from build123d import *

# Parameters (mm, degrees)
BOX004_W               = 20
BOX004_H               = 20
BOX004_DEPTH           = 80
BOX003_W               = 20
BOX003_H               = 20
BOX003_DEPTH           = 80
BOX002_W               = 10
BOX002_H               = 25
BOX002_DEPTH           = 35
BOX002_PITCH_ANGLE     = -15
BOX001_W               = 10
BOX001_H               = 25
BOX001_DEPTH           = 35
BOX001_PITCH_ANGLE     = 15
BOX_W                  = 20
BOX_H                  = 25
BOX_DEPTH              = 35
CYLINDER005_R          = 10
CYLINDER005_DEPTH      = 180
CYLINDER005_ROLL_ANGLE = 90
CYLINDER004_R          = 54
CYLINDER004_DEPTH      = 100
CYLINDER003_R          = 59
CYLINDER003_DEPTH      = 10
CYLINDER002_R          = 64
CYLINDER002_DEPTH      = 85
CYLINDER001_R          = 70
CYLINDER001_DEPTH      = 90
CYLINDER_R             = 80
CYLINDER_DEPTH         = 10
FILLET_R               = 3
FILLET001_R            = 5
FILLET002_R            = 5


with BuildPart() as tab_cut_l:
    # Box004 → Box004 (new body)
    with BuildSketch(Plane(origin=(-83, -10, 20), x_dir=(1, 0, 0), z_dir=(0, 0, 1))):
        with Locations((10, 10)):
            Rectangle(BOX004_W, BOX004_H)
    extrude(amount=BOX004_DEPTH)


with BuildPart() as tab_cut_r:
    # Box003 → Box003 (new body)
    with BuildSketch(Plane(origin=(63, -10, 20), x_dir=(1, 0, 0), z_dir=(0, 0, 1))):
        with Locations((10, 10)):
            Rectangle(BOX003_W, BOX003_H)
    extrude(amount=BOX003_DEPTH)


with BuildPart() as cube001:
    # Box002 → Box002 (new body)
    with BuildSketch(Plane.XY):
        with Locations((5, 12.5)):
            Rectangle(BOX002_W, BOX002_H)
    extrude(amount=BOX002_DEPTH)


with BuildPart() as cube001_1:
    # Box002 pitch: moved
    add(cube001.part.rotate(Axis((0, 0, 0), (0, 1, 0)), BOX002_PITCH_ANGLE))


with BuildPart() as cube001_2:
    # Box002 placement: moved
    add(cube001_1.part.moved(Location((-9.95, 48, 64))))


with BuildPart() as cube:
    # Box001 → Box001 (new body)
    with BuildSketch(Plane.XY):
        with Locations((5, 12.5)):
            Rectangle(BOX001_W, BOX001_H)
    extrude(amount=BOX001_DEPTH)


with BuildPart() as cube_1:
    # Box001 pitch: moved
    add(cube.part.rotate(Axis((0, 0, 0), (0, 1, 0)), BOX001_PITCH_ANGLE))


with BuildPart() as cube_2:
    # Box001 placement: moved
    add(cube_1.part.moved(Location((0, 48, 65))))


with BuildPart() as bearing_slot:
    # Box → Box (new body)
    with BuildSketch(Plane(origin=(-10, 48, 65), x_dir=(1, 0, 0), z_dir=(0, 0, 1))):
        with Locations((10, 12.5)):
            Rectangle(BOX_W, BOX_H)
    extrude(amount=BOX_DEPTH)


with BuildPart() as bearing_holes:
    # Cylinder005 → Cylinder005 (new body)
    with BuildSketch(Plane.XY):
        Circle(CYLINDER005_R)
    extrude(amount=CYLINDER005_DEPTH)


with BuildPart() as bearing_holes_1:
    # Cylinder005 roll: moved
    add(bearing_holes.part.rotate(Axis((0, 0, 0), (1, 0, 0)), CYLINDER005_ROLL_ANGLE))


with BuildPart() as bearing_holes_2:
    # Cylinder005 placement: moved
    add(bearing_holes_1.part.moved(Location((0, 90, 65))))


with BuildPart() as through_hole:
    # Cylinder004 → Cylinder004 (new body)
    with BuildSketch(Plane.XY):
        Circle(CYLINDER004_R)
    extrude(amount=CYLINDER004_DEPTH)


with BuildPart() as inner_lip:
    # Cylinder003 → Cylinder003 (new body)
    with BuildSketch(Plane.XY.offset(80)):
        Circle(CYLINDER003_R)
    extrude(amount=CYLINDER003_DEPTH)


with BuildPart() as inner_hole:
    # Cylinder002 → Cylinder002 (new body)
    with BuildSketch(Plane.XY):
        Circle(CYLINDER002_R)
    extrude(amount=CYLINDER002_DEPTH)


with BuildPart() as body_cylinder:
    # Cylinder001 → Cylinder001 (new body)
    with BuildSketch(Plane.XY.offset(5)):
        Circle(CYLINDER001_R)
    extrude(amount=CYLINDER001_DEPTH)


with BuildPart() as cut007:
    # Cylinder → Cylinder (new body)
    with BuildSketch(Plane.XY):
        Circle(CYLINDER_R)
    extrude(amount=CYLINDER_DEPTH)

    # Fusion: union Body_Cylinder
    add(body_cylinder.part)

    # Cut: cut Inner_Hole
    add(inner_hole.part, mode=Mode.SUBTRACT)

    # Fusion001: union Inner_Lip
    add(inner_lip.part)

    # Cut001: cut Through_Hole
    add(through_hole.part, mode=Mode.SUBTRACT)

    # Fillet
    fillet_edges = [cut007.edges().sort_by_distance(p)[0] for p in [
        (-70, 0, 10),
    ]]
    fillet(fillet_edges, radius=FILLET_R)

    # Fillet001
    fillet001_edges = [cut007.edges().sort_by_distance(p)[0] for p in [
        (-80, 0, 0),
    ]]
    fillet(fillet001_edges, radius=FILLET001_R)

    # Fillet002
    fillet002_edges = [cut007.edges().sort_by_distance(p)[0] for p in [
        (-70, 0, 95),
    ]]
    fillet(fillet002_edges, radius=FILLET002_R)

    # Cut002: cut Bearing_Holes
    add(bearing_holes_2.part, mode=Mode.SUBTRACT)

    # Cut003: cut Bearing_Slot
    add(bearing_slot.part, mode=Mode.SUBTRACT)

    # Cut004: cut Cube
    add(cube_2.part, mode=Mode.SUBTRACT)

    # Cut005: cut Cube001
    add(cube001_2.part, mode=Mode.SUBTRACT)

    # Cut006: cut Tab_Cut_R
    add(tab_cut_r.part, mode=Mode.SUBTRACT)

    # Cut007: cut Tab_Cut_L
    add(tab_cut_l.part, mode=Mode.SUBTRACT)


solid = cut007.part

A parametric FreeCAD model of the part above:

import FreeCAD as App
import Part
import Sketcher

V = App.Vector


def edges_at(feature, points):
    """Names of the edges that pass closest to the given points."""
    edges = feature.Shape.Edges
    near = lambda p: min(range(len(edges)), key=lambda i: edges[i].distToShape(Part.Vertex(*p))[0])
    return sorted({f"Edge{near(p) + 1}" for p in points})

doc = App.newDocument("Part")
body = doc.addObject("PartDesign::Body", "Body")

# Sketch on XY plane
sketch1 = body.newObject("Sketcher::SketchObject", "Sketch")
sketch1.AttachmentSupport = (doc.getObject("XY_Plane"), [""])
sketch1.MapMode = "FlatFace"
sketch1.AttachmentOffset = App.Placement(V(0, 0, 20), App.Rotation())
sketch1.addGeometry([
    Part.LineSegment(V(-83, 10, 0), V(-83, -10, 0)),
    Part.LineSegment(V(-83, -10, 0), V(-63, -10, 0)),
    Part.LineSegment(V(-63, -10, 0), V(-63, 10, 0)),
    Part.LineSegment(V(-63, 10, 0), V(-83, 10, 0)),
], False)
sketch1.addConstraint([
    Sketcher.Constraint("Coincident", 0, 2, 1, 1),
    Sketcher.Constraint("Coincident", 1, 2, 2, 1),
    Sketcher.Constraint("Coincident", 2, 2, 3, 1),
    Sketcher.Constraint("Coincident", 3, 2, 0, 1),
    Sketcher.Constraint("Vertical", 0),
    Sketcher.Constraint("Horizontal", 1),
    Sketcher.Constraint("Vertical", 2),
    Sketcher.Constraint("Horizontal", 3),
    Sketcher.Constraint("Equal", 3, 0),
    Sketcher.Constraint("DistanceX", 1, 1, 1, 2, 20.0),
    Sketcher.Constraint("DistanceX", 0, 2, -1, 1, 83.0),
    Sketcher.Constraint("DistanceY", 0, 2, -1, 1, 10.0),
])
pad1 = body.newObject("PartDesign::Pad", "Pad")
pad1.Profile = sketch1
pad1.Length = 80
body2 = doc.addObject("PartDesign::Body", "Body001")

# Sketch on XY plane
sketch2 = body2.newObject("Sketcher::SketchObject", "Sketch001")
sketch2.AttachmentSupport = (doc.getObject("XY_Plane001"), [""])
sketch2.MapMode = "FlatFace"
sketch2.AttachmentOffset = App.Placement(V(0, 0, 20), App.Rotation())
sketch2.addGeometry([
    Part.LineSegment(V(63, 10, 0), V(63, -10, 0)),
    Part.LineSegment(V(63, -10, 0), V(83, -10, 0)),
    Part.LineSegment(V(83, -10, 0), V(83, 10, 0)),
    Part.LineSegment(V(83, 10, 0), V(63, 10, 0)),
], False)
sketch2.addConstraint([
    Sketcher.Constraint("Coincident", 0, 2, 1, 1),
    Sketcher.Constraint("Coincident", 1, 2, 2, 1),
    Sketcher.Constraint("Coincident", 2, 2, 3, 1),
    Sketcher.Constraint("Coincident", 3, 2, 0, 1),
    Sketcher.Constraint("Vertical", 0),
    Sketcher.Constraint("Horizontal", 1),
    Sketcher.Constraint("Vertical", 2),
    Sketcher.Constraint("Horizontal", 3),
    Sketcher.Constraint("Equal", 3, 0),
    Sketcher.Constraint("DistanceX", 1, 1, 1, 2, 20.0),
    Sketcher.Constraint("DistanceX", -1, 1, 0, 2, 63.0),
    Sketcher.Constraint("DistanceY", 0, 2, -1, 1, 10.0),
])
pad2 = body2.newObject("PartDesign::Pad", "Pad001")
pad2.Profile = sketch2
pad2.Length = 80
body3 = doc.addObject("PartDesign::Body", "Body002")

# Sketch on XY plane
sketch3 = body3.newObject("Sketcher::SketchObject", "Sketch002")
sketch3.AttachmentSupport = (doc.getObject("XY_Plane002"), [""])
sketch3.MapMode = "FlatFace"
sketch3.addGeometry([
    Part.LineSegment(V(0, 25, 0), V(0, 0, 0)),
    Part.LineSegment(V(0, 0, 0), V(10, 0, 0)),
    Part.LineSegment(V(10, 0, 0), V(10, 25, 0)),
    Part.LineSegment(V(10, 25, 0), V(0, 25, 0)),
], False)
sketch3.addConstraint([
    Sketcher.Constraint("Coincident", 0, 2, 1, 1),
    Sketcher.Constraint("Coincident", 1, 2, 2, 1),
    Sketcher.Constraint("Coincident", 2, 2, 3, 1),
    Sketcher.Constraint("Coincident", 3, 2, 0, 1),
    Sketcher.Constraint("Vertical", 0),
    Sketcher.Constraint("Horizontal", 1),
    Sketcher.Constraint("Vertical", 2),
    Sketcher.Constraint("Horizontal", 3),
    Sketcher.Constraint("Coincident", 0, 2, -1, 1),
    Sketcher.Constraint("DistanceX", 1, 1, 1, 2, 10.0),
    Sketcher.Constraint("DistanceY", 0, 2, 0, 1, 25.0),
])
pad3 = body3.newObject("PartDesign::Pad", "Pad002")
pad3.Profile = sketch3
pad3.Length = 35
body4 = doc.addObject("PartDesign::Body", "Body003")
doc.recompute()

body3.Placement = App.Placement(V(0, 0, 0), App.Rotation(V(0, 1, 0), 345))
boolean = body4.newObject("PartDesign::Boolean", "Boolean")
boolean.Type = "Fuse"
boolean.addObjects([body3])
body5 = doc.addObject("PartDesign::Body", "Body004")
doc.recompute()

body4.Placement = App.Placement(V(-9.95, 48, 64), App.Rotation(V(0, 0, 1), 0))
boolean2 = body5.newObject("PartDesign::Boolean", "Boolean001")
boolean2.Type = "Fuse"
boolean2.addObjects([body4])
body6 = doc.addObject("PartDesign::Body", "Body005")

# Sketch on XY plane
sketch4 = body6.newObject("Sketcher::SketchObject", "Sketch003")
sketch4.AttachmentSupport = (doc.getObject("XY_Plane005"), [""])
sketch4.MapMode = "FlatFace"
sketch4.addGeometry([
    Part.LineSegment(V(0, 25, 0), V(0, 0, 0)),
    Part.LineSegment(V(0, 0, 0), V(10, 0, 0)),
    Part.LineSegment(V(10, 0, 0), V(10, 25, 0)),
    Part.LineSegment(V(10, 25, 0), V(0, 25, 0)),
], False)
sketch4.addConstraint([
    Sketcher.Constraint("Coincident", 0, 2, 1, 1),
    Sketcher.Constraint("Coincident", 1, 2, 2, 1),
    Sketcher.Constraint("Coincident", 2, 2, 3, 1),
    Sketcher.Constraint("Coincident", 3, 2, 0, 1),
    Sketcher.Constraint("Vertical", 0),
    Sketcher.Constraint("Horizontal", 1),
    Sketcher.Constraint("Vertical", 2),
    Sketcher.Constraint("Horizontal", 3),
    Sketcher.Constraint("Coincident", 0, 2, -1, 1),
    Sketcher.Constraint("DistanceX", 1, 1, 1, 2, 10.0),
    Sketcher.Constraint("DistanceY", 0, 2, 0, 1, 25.0),
])
pad4 = body6.newObject("PartDesign::Pad", "Pad003")
pad4.Profile = sketch4
pad4.Length = 35
body7 = doc.addObject("PartDesign::Body", "Body006")
doc.recompute()

body6.Placement = App.Placement(V(0, 0, 0), App.Rotation(V(0, 1, 0), 15))
boolean3 = body7.newObject("PartDesign::Boolean", "Boolean002")
boolean3.Type = "Fuse"
boolean3.addObjects([body6])
body8 = doc.addObject("PartDesign::Body", "Body007")
doc.recompute()

body7.Placement = App.Placement(V(0, 48, 65), App.Rotation(V(0, 0, 1), 0))
boolean4 = body8.newObject("PartDesign::Boolean", "Boolean003")
boolean4.Type = "Fuse"
boolean4.addObjects([body7])
body9 = doc.addObject("PartDesign::Body", "Body008")

# Sketch on XY plane
sketch5 = body9.newObject("Sketcher::SketchObject", "Sketch004")
sketch5.AttachmentSupport = (doc.getObject("XY_Plane008"), [""])
sketch5.MapMode = "FlatFace"
sketch5.AttachmentOffset = App.Placement(V(0, 0, 65), App.Rotation())
sketch5.addGeometry([
    Part.LineSegment(V(-10, 73, 0), V(-10, 48, 0)),
    Part.LineSegment(V(-10, 48, 0), V(10, 48, 0)),
    Part.LineSegment(V(10, 48, 0), V(10, 73, 0)),
    Part.LineSegment(V(10, 73, 0), V(-10, 73, 0)),
], False)
sketch5.addConstraint([
    Sketcher.Constraint("Coincident", 0, 2, 1, 1),
    Sketcher.Constraint("Coincident", 1, 2, 2, 1),
    Sketcher.Constraint("Coincident", 2, 2, 3, 1),
    Sketcher.Constraint("Coincident", 3, 2, 0, 1),
    Sketcher.Constraint("Vertical", 0),
    Sketcher.Constraint("Horizontal", 1),
    Sketcher.Constraint("Vertical", 2),
    Sketcher.Constraint("Horizontal", 3),
    Sketcher.Constraint("DistanceX", 1, 1, 1, 2, 20.0),
    Sketcher.Constraint("DistanceY", 0, 2, 0, 1, 25.0),
    Sketcher.Constraint("DistanceX", 0, 2, -1, 1, 10.0),
    Sketcher.Constraint("DistanceY", -1, 1, 0, 2, 48.0),
])
pad5 = body9.newObject("PartDesign::Pad", "Pad004")
pad5.Profile = sketch5
pad5.Length = 35
body10 = doc.addObject("PartDesign::Body", "Body009")

# Sketch on XY plane
sketch6 = body10.newObject("Sketcher::SketchObject", "Sketch005")
sketch6.AttachmentSupport = (doc.getObject("XY_Plane009"), [""])
sketch6.MapMode = "FlatFace"
sketch6.addGeometry(Part.Circle(V(0, 0, 0), V(0, 0, 1), 10), False)
sketch6.addConstraint([
    Sketcher.Constraint("Coincident", 0, 3, -1, 1),
    Sketcher.Constraint("Diameter", 0, 20.0),
])
pad6 = body10.newObject("PartDesign::Pad", "Pad005")
pad6.Profile = sketch6
pad6.Length = 180
body11 = doc.addObject("PartDesign::Body", "Body010")
doc.recompute()

body10.Placement = App.Placement(V(0, 0, 0), App.Rotation(V(1, 0, 0), 90))
boolean5 = body11.newObject("PartDesign::Boolean", "Boolean004")
boolean5.Type = "Fuse"
boolean5.addObjects([body10])
body12 = doc.addObject("PartDesign::Body", "Body011")
doc.recompute()

body11.Placement = App.Placement(V(0, 90, 65), App.Rotation(V(0, 0, 1), 0))
boolean6 = body12.newObject("PartDesign::Boolean", "Boolean005")
boolean6.Type = "Fuse"
boolean6.addObjects([body11])
body13 = doc.addObject("PartDesign::Body", "Body012")

# Sketch on XY plane
sketch7 = body13.newObject("Sketcher::SketchObject", "Sketch006")
sketch7.AttachmentSupport = (doc.getObject("XY_Plane012"), [""])
sketch7.MapMode = "FlatFace"
sketch7.addGeometry(Part.Circle(V(0, 0, 0), V(0, 0, 1), 54), False)
sketch7.addConstraint([
    Sketcher.Constraint("Coincident", 0, 3, -1, 1),
    Sketcher.Constraint("Diameter", 0, 108.0),
])
pad7 = body13.newObject("PartDesign::Pad", "Pad006")
pad7.Profile = sketch7
pad7.Length = 100
body14 = doc.addObject("PartDesign::Body", "Body013")

# Sketch on XY plane
sketch8 = body14.newObject("Sketcher::SketchObject", "Sketch007")
sketch8.AttachmentSupport = (doc.getObject("XY_Plane013"), [""])
sketch8.MapMode = "FlatFace"
sketch8.AttachmentOffset = App.Placement(V(0, 0, 80), App.Rotation())
sketch8.addGeometry(Part.Circle(V(0, 0, 0), V(0, 0, 1), 59), False)
sketch8.addConstraint([
    Sketcher.Constraint("Coincident", 0, 3, -1, 1),
    Sketcher.Constraint("Diameter", 0, 118.0),
])
pad8 = body14.newObject("PartDesign::Pad", "Pad007")
pad8.Profile = sketch8
pad8.Length = 10
body15 = doc.addObject("PartDesign::Body", "Body014")

# Sketch on XY plane
sketch9 = body15.newObject("Sketcher::SketchObject", "Sketch008")
sketch9.AttachmentSupport = (doc.getObject("XY_Plane014"), [""])
sketch9.MapMode = "FlatFace"
sketch9.addGeometry(Part.Circle(V(0, 0, 0), V(0, 0, 1), 64), False)
sketch9.addConstraint([
    Sketcher.Constraint("Coincident", 0, 3, -1, 1),
    Sketcher.Constraint("Diameter", 0, 128.0),
])
pad9 = body15.newObject("PartDesign::Pad", "Pad008")
pad9.Profile = sketch9
pad9.Length = 85
body16 = doc.addObject("PartDesign::Body", "Body015")

# Sketch on XY plane
sketch10 = body16.newObject("Sketcher::SketchObject", "Sketch009")
sketch10.AttachmentSupport = (doc.getObject("XY_Plane015"), [""])
sketch10.MapMode = "FlatFace"
sketch10.AttachmentOffset = App.Placement(V(0, 0, 5), App.Rotation())
sketch10.addGeometry(Part.Circle(V(0, 0, 0), V(0, 0, 1), 70), False)
sketch10.addConstraint([
    Sketcher.Constraint("Coincident", 0, 3, -1, 1),
    Sketcher.Constraint("Diameter", 0, 140.0),
])
pad10 = body16.newObject("PartDesign::Pad", "Pad009")
pad10.Profile = sketch10
pad10.Length = 90
body17 = doc.addObject("PartDesign::Body", "Body016")

# Sketch on XY plane
sketch11 = body17.newObject("Sketcher::SketchObject", "Sketch010")
sketch11.AttachmentSupport = (doc.getObject("XY_Plane016"), [""])
sketch11.MapMode = "FlatFace"
sketch11.addGeometry(Part.Circle(V(0, 0, 0), V(0, 0, 1), 80), False)
sketch11.addConstraint([
    Sketcher.Constraint("Coincident", 0, 3, -1, 1),
    Sketcher.Constraint("Diameter", 0, 160.0),
])
pad11 = body17.newObject("PartDesign::Pad", "Pad010")
pad11.Profile = sketch11
pad11.Length = 10
doc.recompute()

boolean7 = body17.newObject("PartDesign::Boolean", "Boolean006")
boolean7.Type = "Fuse"
boolean7.addObjects([body16])
doc.recompute()

boolean8 = body17.newObject("PartDesign::Boolean", "Boolean007")
boolean8.Type = "Cut"
boolean8.addObjects([body15])
doc.recompute()

boolean9 = body17.newObject("PartDesign::Boolean", "Boolean008")
boolean9.Type = "Fuse"
boolean9.addObjects([body14])
doc.recompute()

boolean10 = body17.newObject("PartDesign::Boolean", "Boolean009")
boolean10.Type = "Cut"
boolean10.addObjects([body13])
doc.recompute()

fillet = body17.newObject("PartDesign::Fillet", "Fillet")
fillet.Base = (boolean10, edges_at(boolean10, [(-70, 0, 10)]))
fillet.Radius = 3
doc.recompute()

fillet2 = body17.newObject("PartDesign::Fillet", "Fillet001")
fillet2.Base = (fillet, edges_at(fillet, [(-80, 0, 0)]))
fillet2.Radius = 5
doc.recompute()

fillet3 = body17.newObject("PartDesign::Fillet", "Fillet002")
fillet3.Base = (fillet2, edges_at(fillet2, [(-70, 0, 95)]))
fillet3.Radius = 5
doc.recompute()

boolean11 = body17.newObject("PartDesign::Boolean", "Boolean010")
boolean11.Type = "Cut"
boolean11.addObjects([body12])
doc.recompute()

boolean12 = body17.newObject("PartDesign::Boolean", "Boolean011")
boolean12.Type = "Cut"
boolean12.addObjects([body9])
doc.recompute()

boolean13 = body17.newObject("PartDesign::Boolean", "Boolean012")
boolean13.Type = "Cut"
boolean13.addObjects([body8])
doc.recompute()

boolean14 = body17.newObject("PartDesign::Boolean", "Boolean013")
boolean14.Type = "Cut"
boolean14.addObjects([body5])
doc.recompute()

boolean15 = body17.newObject("PartDesign::Boolean", "Boolean014")
boolean15.Type = "Cut"
boolean15.addObjects([body2])
doc.recompute()

boolean16 = body17.newObject("PartDesign::Boolean", "Boolean015")
boolean16.Type = "Cut"
boolean16.addObjects([body])

doc.recompute()
